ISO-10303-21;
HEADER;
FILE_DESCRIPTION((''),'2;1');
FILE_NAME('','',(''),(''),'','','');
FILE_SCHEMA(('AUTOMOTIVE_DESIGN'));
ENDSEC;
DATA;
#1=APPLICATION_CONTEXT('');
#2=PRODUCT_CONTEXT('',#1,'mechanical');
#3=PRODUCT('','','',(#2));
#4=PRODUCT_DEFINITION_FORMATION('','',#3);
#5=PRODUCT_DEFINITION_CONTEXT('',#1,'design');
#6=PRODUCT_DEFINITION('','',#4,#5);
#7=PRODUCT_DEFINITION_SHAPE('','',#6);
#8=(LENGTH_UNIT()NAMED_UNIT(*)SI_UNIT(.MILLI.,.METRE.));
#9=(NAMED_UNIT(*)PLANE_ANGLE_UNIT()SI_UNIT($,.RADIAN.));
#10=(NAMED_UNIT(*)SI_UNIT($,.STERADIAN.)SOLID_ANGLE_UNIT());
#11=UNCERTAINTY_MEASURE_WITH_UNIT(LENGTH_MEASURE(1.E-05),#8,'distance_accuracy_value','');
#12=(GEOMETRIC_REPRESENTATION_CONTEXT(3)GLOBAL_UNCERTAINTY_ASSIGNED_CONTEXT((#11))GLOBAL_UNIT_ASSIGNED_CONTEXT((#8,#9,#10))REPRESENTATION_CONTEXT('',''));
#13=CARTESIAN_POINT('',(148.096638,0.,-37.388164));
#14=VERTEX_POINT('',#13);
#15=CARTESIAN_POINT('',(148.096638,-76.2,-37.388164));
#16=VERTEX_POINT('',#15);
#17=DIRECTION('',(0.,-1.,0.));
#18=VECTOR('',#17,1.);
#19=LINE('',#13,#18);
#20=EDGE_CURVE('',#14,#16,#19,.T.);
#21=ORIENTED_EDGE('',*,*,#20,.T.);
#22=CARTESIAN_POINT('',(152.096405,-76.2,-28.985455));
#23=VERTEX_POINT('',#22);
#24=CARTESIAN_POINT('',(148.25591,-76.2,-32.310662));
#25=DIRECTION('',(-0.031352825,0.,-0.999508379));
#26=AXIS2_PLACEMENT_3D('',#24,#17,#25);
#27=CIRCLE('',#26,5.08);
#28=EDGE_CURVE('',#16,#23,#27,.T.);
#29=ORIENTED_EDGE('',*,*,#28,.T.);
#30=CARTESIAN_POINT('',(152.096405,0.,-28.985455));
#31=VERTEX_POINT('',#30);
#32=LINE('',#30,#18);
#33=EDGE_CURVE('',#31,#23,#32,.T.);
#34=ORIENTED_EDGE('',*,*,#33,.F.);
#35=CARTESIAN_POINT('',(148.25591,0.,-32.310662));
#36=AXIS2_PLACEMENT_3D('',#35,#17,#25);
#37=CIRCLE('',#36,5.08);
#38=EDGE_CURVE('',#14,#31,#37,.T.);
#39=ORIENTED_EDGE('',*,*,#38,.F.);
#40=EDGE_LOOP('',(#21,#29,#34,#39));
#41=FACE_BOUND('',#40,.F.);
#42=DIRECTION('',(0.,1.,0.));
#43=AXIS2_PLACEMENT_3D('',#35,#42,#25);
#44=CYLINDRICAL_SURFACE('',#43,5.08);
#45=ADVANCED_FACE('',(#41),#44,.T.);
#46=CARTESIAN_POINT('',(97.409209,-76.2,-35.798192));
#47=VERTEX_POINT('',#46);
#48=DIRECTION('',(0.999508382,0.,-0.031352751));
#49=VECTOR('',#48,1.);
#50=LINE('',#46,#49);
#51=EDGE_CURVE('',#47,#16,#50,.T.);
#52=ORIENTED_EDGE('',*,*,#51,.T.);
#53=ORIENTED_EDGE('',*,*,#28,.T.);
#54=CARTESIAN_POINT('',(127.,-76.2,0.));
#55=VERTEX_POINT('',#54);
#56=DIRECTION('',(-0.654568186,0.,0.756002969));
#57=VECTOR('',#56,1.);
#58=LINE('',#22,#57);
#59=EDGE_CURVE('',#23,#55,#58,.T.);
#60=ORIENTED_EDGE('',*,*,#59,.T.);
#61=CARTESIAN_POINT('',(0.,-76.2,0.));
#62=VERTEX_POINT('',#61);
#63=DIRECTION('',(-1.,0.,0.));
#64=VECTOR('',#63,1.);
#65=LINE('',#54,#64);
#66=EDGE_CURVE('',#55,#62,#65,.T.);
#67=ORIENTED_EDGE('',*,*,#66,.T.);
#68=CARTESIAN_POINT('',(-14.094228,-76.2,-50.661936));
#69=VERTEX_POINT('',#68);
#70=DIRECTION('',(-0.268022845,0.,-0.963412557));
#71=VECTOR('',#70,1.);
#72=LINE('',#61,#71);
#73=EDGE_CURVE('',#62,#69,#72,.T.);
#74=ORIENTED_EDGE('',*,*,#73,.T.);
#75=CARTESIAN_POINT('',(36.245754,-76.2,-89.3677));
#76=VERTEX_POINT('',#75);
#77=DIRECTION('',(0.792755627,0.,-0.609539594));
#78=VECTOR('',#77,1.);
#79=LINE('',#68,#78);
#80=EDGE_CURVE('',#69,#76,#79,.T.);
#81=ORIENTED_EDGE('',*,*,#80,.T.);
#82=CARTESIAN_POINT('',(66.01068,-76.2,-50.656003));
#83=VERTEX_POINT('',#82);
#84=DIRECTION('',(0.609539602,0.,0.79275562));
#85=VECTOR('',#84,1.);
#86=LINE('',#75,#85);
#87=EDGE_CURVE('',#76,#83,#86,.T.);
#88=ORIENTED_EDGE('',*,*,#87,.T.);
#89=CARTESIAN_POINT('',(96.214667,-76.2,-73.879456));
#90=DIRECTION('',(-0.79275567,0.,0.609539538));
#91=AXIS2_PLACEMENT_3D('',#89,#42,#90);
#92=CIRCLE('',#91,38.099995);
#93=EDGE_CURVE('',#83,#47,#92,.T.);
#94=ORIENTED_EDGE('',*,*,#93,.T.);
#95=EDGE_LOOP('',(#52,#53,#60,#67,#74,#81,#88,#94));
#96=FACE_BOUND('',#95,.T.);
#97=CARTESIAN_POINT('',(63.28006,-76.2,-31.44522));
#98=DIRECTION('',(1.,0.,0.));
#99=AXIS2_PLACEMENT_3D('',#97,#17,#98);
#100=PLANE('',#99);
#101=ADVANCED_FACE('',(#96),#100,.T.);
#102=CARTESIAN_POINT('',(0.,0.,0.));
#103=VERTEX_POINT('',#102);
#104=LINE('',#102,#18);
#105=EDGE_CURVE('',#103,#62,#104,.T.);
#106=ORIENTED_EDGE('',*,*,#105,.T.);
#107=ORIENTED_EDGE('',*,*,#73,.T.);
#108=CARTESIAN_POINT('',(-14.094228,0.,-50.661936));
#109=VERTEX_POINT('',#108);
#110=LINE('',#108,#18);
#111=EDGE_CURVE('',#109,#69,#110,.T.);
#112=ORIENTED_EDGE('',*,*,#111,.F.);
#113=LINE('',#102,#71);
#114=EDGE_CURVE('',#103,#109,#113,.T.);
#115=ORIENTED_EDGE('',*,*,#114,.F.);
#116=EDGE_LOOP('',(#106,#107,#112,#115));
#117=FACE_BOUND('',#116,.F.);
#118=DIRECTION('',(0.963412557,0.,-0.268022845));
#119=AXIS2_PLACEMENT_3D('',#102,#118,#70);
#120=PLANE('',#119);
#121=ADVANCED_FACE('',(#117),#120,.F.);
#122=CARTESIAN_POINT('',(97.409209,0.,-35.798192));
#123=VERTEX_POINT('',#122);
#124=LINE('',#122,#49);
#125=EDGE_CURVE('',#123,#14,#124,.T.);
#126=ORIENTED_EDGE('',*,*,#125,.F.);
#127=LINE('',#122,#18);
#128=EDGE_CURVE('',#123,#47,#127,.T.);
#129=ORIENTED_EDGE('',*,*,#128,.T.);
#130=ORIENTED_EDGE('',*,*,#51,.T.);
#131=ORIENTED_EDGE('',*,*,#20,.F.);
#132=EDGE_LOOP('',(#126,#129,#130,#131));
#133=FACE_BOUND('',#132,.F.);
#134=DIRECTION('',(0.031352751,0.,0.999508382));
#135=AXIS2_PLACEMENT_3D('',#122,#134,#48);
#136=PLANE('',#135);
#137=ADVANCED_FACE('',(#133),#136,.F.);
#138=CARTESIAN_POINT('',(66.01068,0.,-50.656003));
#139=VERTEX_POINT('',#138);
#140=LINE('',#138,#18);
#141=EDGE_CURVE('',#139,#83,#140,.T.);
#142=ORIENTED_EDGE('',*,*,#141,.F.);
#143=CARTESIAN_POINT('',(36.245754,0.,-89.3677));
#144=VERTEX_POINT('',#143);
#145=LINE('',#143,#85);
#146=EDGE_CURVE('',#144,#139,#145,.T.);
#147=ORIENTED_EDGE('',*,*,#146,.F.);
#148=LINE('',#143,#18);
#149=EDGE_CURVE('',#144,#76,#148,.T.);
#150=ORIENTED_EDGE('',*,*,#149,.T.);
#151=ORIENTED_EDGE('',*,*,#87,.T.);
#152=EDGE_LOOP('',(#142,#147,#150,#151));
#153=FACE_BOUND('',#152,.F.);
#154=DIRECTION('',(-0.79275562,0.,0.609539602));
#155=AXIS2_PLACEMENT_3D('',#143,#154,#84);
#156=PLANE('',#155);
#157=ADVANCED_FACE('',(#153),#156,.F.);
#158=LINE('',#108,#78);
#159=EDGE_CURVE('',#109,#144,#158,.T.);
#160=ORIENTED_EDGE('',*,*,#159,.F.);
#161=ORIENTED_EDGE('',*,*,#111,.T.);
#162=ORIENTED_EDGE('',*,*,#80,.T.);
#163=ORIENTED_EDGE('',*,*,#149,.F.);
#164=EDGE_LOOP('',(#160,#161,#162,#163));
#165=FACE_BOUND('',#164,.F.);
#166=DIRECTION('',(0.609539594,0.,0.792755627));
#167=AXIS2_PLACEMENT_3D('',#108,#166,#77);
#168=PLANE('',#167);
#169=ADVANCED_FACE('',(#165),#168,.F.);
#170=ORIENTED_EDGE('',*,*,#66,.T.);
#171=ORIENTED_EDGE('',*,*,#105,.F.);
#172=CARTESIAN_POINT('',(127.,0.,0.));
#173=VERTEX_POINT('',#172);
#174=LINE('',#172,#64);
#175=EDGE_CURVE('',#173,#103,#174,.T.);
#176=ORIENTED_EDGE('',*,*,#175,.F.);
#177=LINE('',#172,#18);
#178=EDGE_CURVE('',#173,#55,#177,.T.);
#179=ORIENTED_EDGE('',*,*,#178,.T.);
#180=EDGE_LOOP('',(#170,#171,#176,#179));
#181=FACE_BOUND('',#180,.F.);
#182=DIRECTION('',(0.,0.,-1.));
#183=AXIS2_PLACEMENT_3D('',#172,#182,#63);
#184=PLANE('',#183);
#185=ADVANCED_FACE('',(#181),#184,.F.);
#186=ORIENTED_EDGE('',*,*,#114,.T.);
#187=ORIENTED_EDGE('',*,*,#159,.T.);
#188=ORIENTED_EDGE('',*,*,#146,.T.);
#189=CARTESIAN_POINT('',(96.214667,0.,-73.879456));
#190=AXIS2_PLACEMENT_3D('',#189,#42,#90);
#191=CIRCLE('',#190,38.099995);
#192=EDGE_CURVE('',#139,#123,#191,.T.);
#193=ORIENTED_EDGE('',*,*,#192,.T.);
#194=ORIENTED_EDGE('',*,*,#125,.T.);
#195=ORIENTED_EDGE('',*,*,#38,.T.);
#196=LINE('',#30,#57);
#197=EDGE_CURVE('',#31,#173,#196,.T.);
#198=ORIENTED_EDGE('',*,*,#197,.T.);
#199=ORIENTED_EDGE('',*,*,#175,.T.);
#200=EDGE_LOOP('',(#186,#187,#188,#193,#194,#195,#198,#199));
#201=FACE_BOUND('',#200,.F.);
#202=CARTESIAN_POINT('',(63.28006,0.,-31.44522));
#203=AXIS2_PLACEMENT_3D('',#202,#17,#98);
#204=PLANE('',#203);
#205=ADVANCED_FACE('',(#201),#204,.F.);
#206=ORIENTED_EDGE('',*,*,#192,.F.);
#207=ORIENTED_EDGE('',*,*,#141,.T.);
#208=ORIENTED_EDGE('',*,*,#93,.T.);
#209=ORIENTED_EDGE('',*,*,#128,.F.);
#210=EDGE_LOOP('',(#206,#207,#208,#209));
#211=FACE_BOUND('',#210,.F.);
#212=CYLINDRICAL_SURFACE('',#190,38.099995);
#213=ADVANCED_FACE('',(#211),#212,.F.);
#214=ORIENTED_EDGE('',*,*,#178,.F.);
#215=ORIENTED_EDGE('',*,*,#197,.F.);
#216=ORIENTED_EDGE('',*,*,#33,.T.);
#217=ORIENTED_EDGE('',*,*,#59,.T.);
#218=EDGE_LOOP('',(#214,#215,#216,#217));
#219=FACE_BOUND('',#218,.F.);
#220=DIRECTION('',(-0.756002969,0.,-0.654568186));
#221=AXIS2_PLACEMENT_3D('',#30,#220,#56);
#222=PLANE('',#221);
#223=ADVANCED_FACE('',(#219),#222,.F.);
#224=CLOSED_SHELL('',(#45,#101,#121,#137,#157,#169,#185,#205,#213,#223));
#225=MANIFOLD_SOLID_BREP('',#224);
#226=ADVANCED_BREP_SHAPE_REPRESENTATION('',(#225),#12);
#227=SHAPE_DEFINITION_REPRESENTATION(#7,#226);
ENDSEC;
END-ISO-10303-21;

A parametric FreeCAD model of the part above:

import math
import FreeCAD as App
import Part
import Sketcher
Q = App.Units.Quantity

doc = App.newDocument("Part")
params = doc.addObject("Spreadsheet::Sheet", "Params")
for row, (alias, value) in enumerate([
    ("sketch1_radius", "1.4999998 in"),
    ("sketch1_radius2", "0.2 in"),
    ("sketch1_width", "5 in"),
    ("sketch1_length", "2.5 in"),
    ("pad1_length", "3 in"),
], start=1):
    params.set(f"A{row}", alias)
    params.set(f"B{row}", "=" + value)
    params.setAlias(f"B{row}", alias)

body = doc.addObject("PartDesign::Body", "Body")

# Sketch on XZ plane
sketch1 = body.newObject("Sketcher::SketchObject", "Sketch")
sketch1.AttachmentSupport = (doc.getObject("XZ_Plane"), [""])
sketch1.MapMode = "FlatFace"
sketch1.addGeometry([
    Part.LineSegment(App.Vector(152, -29, 0), App.Vector(127, 0, 0)),  # 0
    Part.LineSegment(App.Vector(127, 0, 0), App.Vector(0, 0, 0)),  # 1
    Part.LineSegment(App.Vector(0, 0, 0), App.Vector(-14, -51, 0)),  # 2
    Part.LineSegment(App.Vector(-14, -51, 0), App.Vector(36, -89, 0)),  # 3
    Part.LineSegment(App.Vector(36, -89, 0), App.Vector(66, -51, 0)),  # 4
    Part.ArcOfCircle(Part.Circle(App.Vector(96, -74, 0), App.Vector(0, 0, 1), 38), math.radians(88), math.radians(142)),  # 5
    Part.LineSegment(App.Vector(97, -36, 0), App.Vector(148, -37, 0)),  # 6
    Part.ArcOfCircle(Part.Circle(App.Vector(148, -32, 0), App.Vector(0, 0, 1), 5), math.radians(-92), math.radians(41)),  # 7
], False)
sketch1.addConstraint([
    Sketcher.Constraint("Coincident", 0, 2, 1, 1),
    Sketcher.Constraint("Coincident", 1, 2, 2, 1),
    Sketcher.Constraint("Coincident", 2, 2, 3, 1),
    Sketcher.Constraint("Coincident", 3, 2, 4, 1),
    Sketcher.Constraint("Tangent", 4, 2, 5, 2),
    Sketcher.Constraint("Tangent", 5, 1, 6, 1),
    Sketcher.Constraint("Tangent", 6, 2, 7, 1),
    Sketcher.Constraint("Tangent", 7, 2, 0, 1),
    Sketcher.Constraint("Horizontal", 1),
    Sketcher.Constraint("Coincident", 1, 2, -1, 1),
    Sketcher.Constraint("Perpendicular", 3, 4),
    Sketcher.Constraint("Radius", 5, Q("1.4999998 in")),
    Sketcher.Constraint("Radius", 7, Q("0.2 in")),
    Sketcher.Constraint("DistanceX", 1, 2, 1, 1, Q("5 in")),
    Sketcher.Constraint("Distance", 3, Q("2.5 in")),
    Sketcher.Constraint("Distance", 0, Q("38.340398 mm")),
    Sketcher.Constraint("DistanceY", 3, 2, -1, 1, Q("89.3677 mm")),
    Sketcher.Constraint("DistanceX", 5, 1, 7, 3, Q("50.846701 mm")),
    Sketcher.Constraint("DistanceY", 5, 3, 7, 2, Q("44.894001 mm")),
    Sketcher.Constraint("Distance", 2, Q("52.58592 mm")),
    Sketcher.Constraint("DistanceX", -1, 1, 7, 3, Q("148.25591 mm")),
])
sketch1.setExpression("Constraints[11]", "Params.sketch1_radius")
sketch1.setExpression("Constraints[12]", "Params.sketch1_radius2")
sketch1.setExpression("Constraints[13]", "Params.sketch1_width")
sketch1.setExpression("Constraints[14]", "Params.sketch1_length")
pad1 = body.newObject("PartDesign::Pad", "Pad")
pad1.Profile = sketch1
pad1.setExpression("Length", "Params.pad1_length")

doc.recompute()
